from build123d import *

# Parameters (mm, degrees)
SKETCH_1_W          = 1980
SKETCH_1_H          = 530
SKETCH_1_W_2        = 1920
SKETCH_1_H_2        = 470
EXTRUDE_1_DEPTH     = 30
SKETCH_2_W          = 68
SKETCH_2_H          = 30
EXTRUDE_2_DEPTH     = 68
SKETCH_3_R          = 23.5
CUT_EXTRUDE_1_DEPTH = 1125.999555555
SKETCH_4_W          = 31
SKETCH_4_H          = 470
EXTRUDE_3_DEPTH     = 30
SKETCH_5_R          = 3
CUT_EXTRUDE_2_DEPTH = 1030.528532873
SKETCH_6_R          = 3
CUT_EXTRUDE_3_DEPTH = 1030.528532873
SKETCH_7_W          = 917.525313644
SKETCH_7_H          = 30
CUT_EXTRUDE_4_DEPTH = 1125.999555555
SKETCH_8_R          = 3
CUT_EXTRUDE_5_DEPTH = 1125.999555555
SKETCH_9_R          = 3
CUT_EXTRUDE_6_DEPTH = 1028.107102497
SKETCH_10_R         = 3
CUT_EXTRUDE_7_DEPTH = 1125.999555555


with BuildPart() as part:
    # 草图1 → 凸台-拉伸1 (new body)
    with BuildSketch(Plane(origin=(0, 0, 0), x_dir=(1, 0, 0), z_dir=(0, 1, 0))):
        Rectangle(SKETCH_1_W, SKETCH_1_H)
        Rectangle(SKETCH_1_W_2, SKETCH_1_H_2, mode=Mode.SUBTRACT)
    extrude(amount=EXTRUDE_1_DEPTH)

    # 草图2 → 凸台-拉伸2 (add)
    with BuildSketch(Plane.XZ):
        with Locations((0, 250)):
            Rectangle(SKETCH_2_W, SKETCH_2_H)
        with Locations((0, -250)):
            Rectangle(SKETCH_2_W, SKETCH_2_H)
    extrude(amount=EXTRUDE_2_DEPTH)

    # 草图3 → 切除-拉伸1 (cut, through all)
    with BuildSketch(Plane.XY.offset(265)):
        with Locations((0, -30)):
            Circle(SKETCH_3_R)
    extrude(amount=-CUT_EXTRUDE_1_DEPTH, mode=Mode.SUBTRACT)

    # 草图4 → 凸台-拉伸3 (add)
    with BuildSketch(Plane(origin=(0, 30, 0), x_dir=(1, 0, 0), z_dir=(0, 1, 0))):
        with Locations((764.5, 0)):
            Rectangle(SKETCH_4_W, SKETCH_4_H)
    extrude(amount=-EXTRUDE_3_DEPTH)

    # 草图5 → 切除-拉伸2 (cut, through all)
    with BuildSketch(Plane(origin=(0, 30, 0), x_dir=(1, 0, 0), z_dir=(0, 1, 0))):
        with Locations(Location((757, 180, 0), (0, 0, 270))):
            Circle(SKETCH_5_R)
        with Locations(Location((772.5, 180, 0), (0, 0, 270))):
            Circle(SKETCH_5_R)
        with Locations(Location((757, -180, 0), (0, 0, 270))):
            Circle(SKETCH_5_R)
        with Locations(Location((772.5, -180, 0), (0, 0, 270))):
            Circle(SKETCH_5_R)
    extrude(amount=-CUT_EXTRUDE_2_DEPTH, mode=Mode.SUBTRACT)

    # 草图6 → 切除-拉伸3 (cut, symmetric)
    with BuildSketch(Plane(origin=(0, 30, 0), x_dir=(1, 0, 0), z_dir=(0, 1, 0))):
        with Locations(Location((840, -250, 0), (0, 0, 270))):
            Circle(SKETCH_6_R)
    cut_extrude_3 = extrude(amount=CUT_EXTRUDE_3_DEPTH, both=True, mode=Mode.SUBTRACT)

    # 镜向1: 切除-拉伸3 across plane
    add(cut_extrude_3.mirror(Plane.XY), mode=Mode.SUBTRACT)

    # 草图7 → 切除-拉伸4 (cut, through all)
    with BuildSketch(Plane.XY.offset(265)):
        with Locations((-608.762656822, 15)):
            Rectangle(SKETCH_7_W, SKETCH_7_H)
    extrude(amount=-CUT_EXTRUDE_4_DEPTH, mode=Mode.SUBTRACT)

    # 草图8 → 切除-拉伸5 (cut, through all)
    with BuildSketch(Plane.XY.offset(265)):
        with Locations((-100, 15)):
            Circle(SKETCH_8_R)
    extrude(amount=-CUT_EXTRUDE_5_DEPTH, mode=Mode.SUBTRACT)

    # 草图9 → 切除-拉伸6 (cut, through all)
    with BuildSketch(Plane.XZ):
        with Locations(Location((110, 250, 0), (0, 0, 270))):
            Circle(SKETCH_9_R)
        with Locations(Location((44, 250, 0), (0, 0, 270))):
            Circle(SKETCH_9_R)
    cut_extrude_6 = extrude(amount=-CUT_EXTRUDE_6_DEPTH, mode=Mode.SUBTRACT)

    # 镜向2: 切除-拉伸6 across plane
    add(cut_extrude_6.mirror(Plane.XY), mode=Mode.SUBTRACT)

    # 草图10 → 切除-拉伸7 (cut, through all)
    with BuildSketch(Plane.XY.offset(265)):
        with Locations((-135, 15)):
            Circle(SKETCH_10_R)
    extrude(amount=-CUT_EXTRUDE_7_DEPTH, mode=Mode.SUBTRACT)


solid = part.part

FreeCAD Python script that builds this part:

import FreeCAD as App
import Part
import Sketcher
from FreeCAD import Vector

doc = App.newDocument("Part")
body = doc.addObject("PartDesign::Body", "Body")

sketch1 = body.newObject("Sketcher::SketchObject", "Sketch")
sketch1.AttachmentSupport = (doc.getObject("XZ_Plane"), [""])
sketch1.MapMode = "FlatFace"
sketch1.addGeometry([
    Part.LineSegment(Vector(-990, -265, 0), Vector(-990, 265, 0)),
    Part.LineSegment(Vector(-990, 265, 0), Vector(990, 265, 0)),
    Part.LineSegment(Vector(990, 265, 0), Vector(990, -265, 0)),
    Part.LineSegment(Vector(990, -265, 0), Vector(-990, -265, 0)),
    Part.LineSegment(Vector(960, 235, 0), Vector(-960, 235, 0)),
    Part.LineSegment(Vector(-960, 235, 0), Vector(-960, -235, 0)),
    Part.LineSegment(Vector(-960, -235, 0), Vector(960, -235, 0)),
    Part.LineSegment(Vector(960, -235, 0), Vector(960, 235, 0)),
], False)
sketch1.addConstraint([
    Sketcher.Constraint("Coincident", 0, 2, 1, 1),
    Sketcher.Constraint("Coincident", 1, 2, 2, 1),
    Sketcher.Constraint("Coincident", 2, 2, 3, 1),
    Sketcher.Constraint("Coincident", 3, 2, 0, 1),
    Sketcher.Constraint("Coincident", 4, 2, 5, 1),
    Sketcher.Constraint("Coincident", 5, 2, 6, 1),
    Sketcher.Constraint("Coincident", 6, 2, 7, 1),
    Sketcher.Constraint("Coincident", 7, 2, 4, 1),
    Sketcher.Constraint("Vertical", 0),
    Sketcher.Constraint("Horizontal", 1),
    Sketcher.Constraint("Vertical", 2),
    Sketcher.Constraint("Horizontal", 3),
    Sketcher.Constraint("Horizontal", 4),
    Sketcher.Constraint("Vertical", 5),
    Sketcher.Constraint("Horizontal", 6),
    Sketcher.Constraint("Vertical", 7),
    Sketcher.Constraint("Symmetric", 0, 2, 2, 2, -1, 1),
    Sketcher.Constraint("Symmetric", 4, 2, 6, 2, -1, 1),
    Sketcher.Constraint("DistanceX", 1, 1, 1, 2, 1980.0),
    Sketcher.Constraint("DistanceX", 4, 2, 4, 1, 1920.0),
    Sketcher.Constraint("DistanceY", 0, 1, 0, 2, 530.0),
    Sketcher.Constraint("DistanceY", 5, 2, 5, 1, 470.0),
])
pad1 = body.newObject("PartDesign::Pad", "Pad")
pad1.Profile = sketch1
pad1.Length = 30
pad1.Reversed = True

sketch2 = body.newObject("Sketcher::SketchObject", "Sketch001")
sketch2.AttachmentSupport = (doc.getObject("XZ_Plane"), [""])
sketch2.MapMode = "FlatFace"
sketch2.addGeometry([
    Part.LineSegment(Vector(-34, 265, 0), Vector(-34, 235, 0)),
    Part.LineSegment(Vector(-34, 235, 0), Vector(34, 235, 0)),
    Part.LineSegment(Vector(34, 235, 0), Vector(34, 265, 0)),
    Part.LineSegment(Vector(34, 265, 0), Vector(-34, 265, 0)),
    Part.LineSegment(Vector(-34, -235, 0), Vector(-34, -265, 0)),
    Part.LineSegment(Vector(-34, -265, 0), Vector(34, -265, 0)),
    Part.LineSegment(Vector(34, -265, 0), Vector(34, -235, 0)),
    Part.LineSegment(Vector(34, -235, 0), Vector(-34, -235, 0)),
], False)
sketch2.addConstraint([
    Sketcher.Constraint("Coincident", 0, 2, 1, 1),
    Sketcher.Constraint("Coincident", 1, 2, 2, 1),
    Sketcher.Constraint("Coincident", 2, 2, 3, 1),
    Sketcher.Constraint("Coincident", 3, 2, 0, 1),
    Sketcher.Constraint("Coincident", 4, 2, 5, 1),
    Sketcher.Constraint("Coincident", 5, 2, 6, 1),
    Sketcher.Constraint("Coincident", 6, 2, 7, 1),
    Sketcher.Constraint("Coincident", 7, 2, 4, 1),
    Sketcher.Constraint("Vertical", 0),
    Sketcher.Constraint("Horizontal", 1),
    Sketcher.Constraint("Vertical", 2),
    Sketcher.Constraint("Horizontal", 3),
    Sketcher.Constraint("Vertical", 4),
    Sketcher.Constraint("Horizontal", 5),
    Sketcher.Constraint("Vertical", 6),
    Sketcher.Constraint("Horizontal", 7),
    Sketcher.Constraint("Symmetric", 2, 2, 4, 2, -1, 1),
    Sketcher.Constraint("Symmetric", 0, 2, 6, 2, -1, 1),
    Sketcher.Constraint("Vertical", 3, 2, 4, 2),
    Sketcher.Constraint("DistanceX", 1, 1, 1, 2, 68.0),
    Sketcher.Constraint("DistanceY", 0, 2, 0, 1, 30.0),
    Sketcher.Constraint("DistanceY", -1, 1, 0, 2, 235.0),
])
pad2 = body.newObject("PartDesign::Pad", "Pad001")
pad2.Profile = sketch2
pad2.Length = 68

sketch3 = body.newObject("Sketcher::SketchObject", "Sketch002")
sketch3.AttachmentSupport = (doc.getObject("XY_Plane"), [""])
sketch3.MapMode = "FlatFace"
sketch3.AttachmentOffset = App.Placement(Vector(0, 0, 265), App.Rotation())
sketch3.addGeometry(Part.Circle(Vector(0, -30, 0), Vector(0, 0, 1), 24), False)
sketch3.addConstraint([
    Sketcher.Constraint("PointOnObject", 0, 3, -2),
    Sketcher.Constraint("Diameter", 0, 47.0),
    Sketcher.Constraint("DistanceY", 0, 3, -1, 1, 30.0),
])
pocket1 = body.newObject("PartDesign::Pocket", "Pocket")
pocket1.Profile = sketch3
pocket1.Type = "ThroughAll"

sketch4 = body.newObject("Sketcher::SketchObject", "Sketch003")
sketch4.AttachmentSupport = (doc.getObject("XZ_Plane"), [""])
sketch4.MapMode = "FlatFace"
sketch4.AttachmentOffset = App.Placement(Vector(0, 0, -30), App.Rotation())
sketch4.addGeometry([
    Part.LineSegment(Vector(749, -235, 0), Vector(749, 235, 0)),
    Part.LineSegment(Vector(749, 235, 0), Vector(780, 235, 0)),
    Part.LineSegment(Vector(780, 235, 0), Vector(780, -235, 0)),
    Part.LineSegment(Vector(780, -235, 0), Vector(749, -235, 0)),
], False)
sketch4.addConstraint([
    Sketcher.Constraint("Coincident", 0, 2, 1, 1),
    Sketcher.Constraint("Coincident", 1, 2, 2, 1),
    Sketcher.Constraint("Coincident", 2, 2, 3, 1),
    Sketcher.Constraint("Coincident", 3, 2, 0, 1),
    Sketcher.Constraint("Vertical", 0),
    Sketcher.Constraint("Horizontal", 1),
    Sketcher.Constraint("Vertical", 2),
    Sketcher.Constraint("Horizontal", 3),
    Sketcher.Constraint("DistanceX", 1, 1, 1, 2, 31.0),
    Sketcher.Constraint("DistanceY", 0, 1, 0, 2, 470.0),
    Sketcher.Constraint("DistanceX", -1, 1, 0, 2, 749.0),
    Sketcher.Constraint("DistanceY", -1, 1, 0, 2, 235.0),
])
pad3 = body.newObject("PartDesign::Pad", "Pad002")
pad3.Profile = sketch4
pad3.Length = 30

sketch5 = body.newObject("Sketcher::SketchObject", "Sketch004")
sketch5.AttachmentSupport = (doc.getObject("XZ_Plane"), [""])
sketch5.MapMode = "FlatFace"
sketch5.AttachmentOffset = App.Placement(Vector(0, 0, -30), App.Rotation())
sketch5.addGeometry([
    Part.Circle(Vector(757, -180, 0), Vector(0, 0, 1), 3),
    Part.Circle(Vector(772.5, -180, 0), Vector(0, 0, 1), 3),
    Part.Circle(Vector(757, 180, 0), Vector(0, 0, 1), 3),
    Part.Circle(Vector(772.5, 180, 0), Vector(0, 0, 1), 3),
], False)
sketch5.addConstraint([
    Sketcher.Constraint("Equal", 0, 1),
    Sketcher.Constraint("Equal", 1, 2),
    Sketcher.Constraint("Equal", 2, 3),
    Sketcher.Constraint("Symmetric", 0, 3, 2, 3, -1),
    Sketcher.Constraint("Symmetric", 1, 3, 3, 3, -1),
    Sketcher.Constraint("Horizontal", 0, 3, 1, 3),
    Sketcher.Constraint("Diameter", 0, 6.0),
    Sketcher.Constraint("DistanceX", -1, 1, 0, 3, 757.0),
    Sketcher.Constraint("DistanceY", 0, 3, -1, 1, 180.0),
    Sketcher.Constraint("DistanceX", -1, 1, 1, 3, 772.5),
])
pocket2 = body.newObject("PartDesign::Pocket", "Pocket001")
pocket2.Profile = sketch5
pocket2.Type = "ThroughAll"
pocket2.Reversed = True

sketch6 = body.newObject("Sketcher::SketchObject", "Sketch005")
sketch6.AttachmentSupport = (doc.getObject("XZ_Plane"), [""])
sketch6.MapMode = "FlatFace"
sketch6.AttachmentOffset = App.Placement(Vector(0, 0, -30), App.Rotation())
sketch6.addGeometry(Part.Circle(Vector(840, 250, 0), Vector(0, 0, 1), 3), False)
sketch6.addConstraint([
    Sketcher.Constraint("Diameter", 0, 6.0),
    Sketcher.Constraint("DistanceX", -1, 1, 0, 3, 840.0),
    Sketcher.Constraint("DistanceY", -1, 1, 0, 3, 250.0),
])
pocket3 = body.newObject("PartDesign::Pocket", "Pocket002")
pocket3.Profile = sketch6
pocket3.Length = 2061.057066
pocket3.Midplane = True
doc.recompute()

mirrored = body.newObject("PartDesign::Mirrored", "Mirrored")
mirrored.Originals = [pocket3]
mirrored.MirrorPlane = (doc.getObject("XY_Plane"), [""])
body.Tip = mirrored

sketch7 = body.newObject("Sketcher::SketchObject", "Sketch006")
sketch7.AttachmentSupport = (doc.getObject("XY_Plane"), [""])
sketch7.MapMode = "FlatFace"
sketch7.AttachmentOffset = App.Placement(Vector(0, 0, 265), App.Rotation())
sketch7.addGeometry([
    Part.LineSegment(Vector(-1068, 30, 0), Vector(-1068, 0, 0)),
    Part.LineSegment(Vector(-1068, 0, 0), Vector(-150, 0, 0)),
    Part.LineSegment(Vector(-150, 0, 0), Vector(-150, 30, 0)),
    Part.LineSegment(Vector(-150, 30, 0), Vector(-1068, 30, 0)),
], False)
sketch7.addConstraint([
    Sketcher.Constraint("Coincident", 0, 2, 1, 1),
    Sketcher.Constraint("Coincident", 1, 2, 2, 1),
    Sketcher.Constraint("Coincident", 2, 2, 3, 1),
    Sketcher.Constraint("Coincident", 3, 2, 0, 1),
    Sketcher.Constraint("Vertical", 0),
    Sketcher.Constraint("Horizontal", 1),
    Sketcher.Constraint("Vertical", 2),
    Sketcher.Constraint("Horizontal", 3),
    Sketcher.Constraint("PointOnObject", 0, 2, -1),
    Sketcher.Constraint("DistanceY", 0, 2, 0, 1, 30.0),
    Sketcher.Constraint("DistanceX", 1, 2, -1, 1, 150.0),
    Sketcher.Constraint("DistanceX", 1, 1, 1, 2, 917.525314),
])
pocket4 = body.newObject("PartDesign::Pocket", "Pocket003")
pocket4.Profile = sketch7
pocket4.Type = "ThroughAll"

sketch8 = body.newObject("Sketcher::SketchObject", "Sketch007")
sketch8.AttachmentSupport = (doc.getObject("XY_Plane"), [""])
sketch8.MapMode = "FlatFace"
sketch8.AttachmentOffset = App.Placement(Vector(0, 0, 265), App.Rotation())
sketch8.addGeometry(Part.Circle(Vector(-100, 15, 0), Vector(0, 0, 1), 3), False)
sketch8.addConstraint([
    Sketcher.Constraint("Diameter", 0, 6.0),
    Sketcher.Constraint("DistanceX", 0, 3, -1, 1, 100.0),
    Sketcher.Constraint("DistanceY", -1, 1, 0, 3, 15.0),
])
pocket5 = body.newObject("PartDesign::Pocket", "Pocket004")
pocket5.Profile = sketch8
pocket5.Type = "ThroughAll"

sketch9 = body.newObject("Sketcher::SketchObject", "Sketch008")
sketch9.AttachmentSupport = (doc.getObject("XZ_Plane"), [""])
sketch9.MapMode = "FlatFace"
sketch9.addGeometry([
    Part.Circle(Vector(110, 250, 0), Vector(0, 0, 1), 3),
    Part.Circle(Vector(44, 250, 0), Vector(0, 0, 1), 3),
], False)
sketch9.addConstraint([
    Sketcher.Constraint("Equal", 0, 1),
    Sketcher.Constraint("Horizontal", 0, 3, 1, 3),
    Sketcher.Constraint("Diameter", 0, 6.0),
    Sketcher.Constraint("DistanceX", -1, 1, 0, 3, 110.0),
    Sketcher.Constraint("DistanceY", -1, 1, 0, 3, 250.0),
    Sketcher.Constraint("DistanceX", -1, 1, 1, 3, 44.0),
])
pocket6 = body.newObject("PartDesign::Pocket", "Pocket005")
pocket6.Profile = sketch9
pocket6.Type = "ThroughAll"
doc.recompute()

mirrored2 = body.newObject("PartDesign::Mirrored", "Mirrored001")
mirrored2.Originals = [pocket6]
mirrored2.MirrorPlane = (doc.getObject("XY_Plane"), [""])
body.Tip = mirrored2

sketch10 = body.newObject("Sketcher::SketchObject", "Sketch009")
sketch10.AttachmentSupport = (doc.getObject("XY_Plane"), [""])
sketch10.MapMode = "FlatFace"
sketch10.AttachmentOffset = App.Placement(Vector(0, 0, 265), App.Rotation())
sketch10.addGeometry(Part.Circle(Vector(-135, 15, 0), Vector(0, 0, 1), 3), False)
sketch10.addConstraint([
    Sketcher.Constraint("Diameter", 0, 6.0),
    Sketcher.Constraint("DistanceX", 0, 3, -1, 1, 135.0),
    Sketcher.Constraint("DistanceY", -1, 1, 0, 3, 15.0),
])
pocket7 = body.newObject("PartDesign::Pocket", "Pocket006")
pocket7.Profile = sketch10
pocket7.Type = "ThroughAll"

doc.recompute()
